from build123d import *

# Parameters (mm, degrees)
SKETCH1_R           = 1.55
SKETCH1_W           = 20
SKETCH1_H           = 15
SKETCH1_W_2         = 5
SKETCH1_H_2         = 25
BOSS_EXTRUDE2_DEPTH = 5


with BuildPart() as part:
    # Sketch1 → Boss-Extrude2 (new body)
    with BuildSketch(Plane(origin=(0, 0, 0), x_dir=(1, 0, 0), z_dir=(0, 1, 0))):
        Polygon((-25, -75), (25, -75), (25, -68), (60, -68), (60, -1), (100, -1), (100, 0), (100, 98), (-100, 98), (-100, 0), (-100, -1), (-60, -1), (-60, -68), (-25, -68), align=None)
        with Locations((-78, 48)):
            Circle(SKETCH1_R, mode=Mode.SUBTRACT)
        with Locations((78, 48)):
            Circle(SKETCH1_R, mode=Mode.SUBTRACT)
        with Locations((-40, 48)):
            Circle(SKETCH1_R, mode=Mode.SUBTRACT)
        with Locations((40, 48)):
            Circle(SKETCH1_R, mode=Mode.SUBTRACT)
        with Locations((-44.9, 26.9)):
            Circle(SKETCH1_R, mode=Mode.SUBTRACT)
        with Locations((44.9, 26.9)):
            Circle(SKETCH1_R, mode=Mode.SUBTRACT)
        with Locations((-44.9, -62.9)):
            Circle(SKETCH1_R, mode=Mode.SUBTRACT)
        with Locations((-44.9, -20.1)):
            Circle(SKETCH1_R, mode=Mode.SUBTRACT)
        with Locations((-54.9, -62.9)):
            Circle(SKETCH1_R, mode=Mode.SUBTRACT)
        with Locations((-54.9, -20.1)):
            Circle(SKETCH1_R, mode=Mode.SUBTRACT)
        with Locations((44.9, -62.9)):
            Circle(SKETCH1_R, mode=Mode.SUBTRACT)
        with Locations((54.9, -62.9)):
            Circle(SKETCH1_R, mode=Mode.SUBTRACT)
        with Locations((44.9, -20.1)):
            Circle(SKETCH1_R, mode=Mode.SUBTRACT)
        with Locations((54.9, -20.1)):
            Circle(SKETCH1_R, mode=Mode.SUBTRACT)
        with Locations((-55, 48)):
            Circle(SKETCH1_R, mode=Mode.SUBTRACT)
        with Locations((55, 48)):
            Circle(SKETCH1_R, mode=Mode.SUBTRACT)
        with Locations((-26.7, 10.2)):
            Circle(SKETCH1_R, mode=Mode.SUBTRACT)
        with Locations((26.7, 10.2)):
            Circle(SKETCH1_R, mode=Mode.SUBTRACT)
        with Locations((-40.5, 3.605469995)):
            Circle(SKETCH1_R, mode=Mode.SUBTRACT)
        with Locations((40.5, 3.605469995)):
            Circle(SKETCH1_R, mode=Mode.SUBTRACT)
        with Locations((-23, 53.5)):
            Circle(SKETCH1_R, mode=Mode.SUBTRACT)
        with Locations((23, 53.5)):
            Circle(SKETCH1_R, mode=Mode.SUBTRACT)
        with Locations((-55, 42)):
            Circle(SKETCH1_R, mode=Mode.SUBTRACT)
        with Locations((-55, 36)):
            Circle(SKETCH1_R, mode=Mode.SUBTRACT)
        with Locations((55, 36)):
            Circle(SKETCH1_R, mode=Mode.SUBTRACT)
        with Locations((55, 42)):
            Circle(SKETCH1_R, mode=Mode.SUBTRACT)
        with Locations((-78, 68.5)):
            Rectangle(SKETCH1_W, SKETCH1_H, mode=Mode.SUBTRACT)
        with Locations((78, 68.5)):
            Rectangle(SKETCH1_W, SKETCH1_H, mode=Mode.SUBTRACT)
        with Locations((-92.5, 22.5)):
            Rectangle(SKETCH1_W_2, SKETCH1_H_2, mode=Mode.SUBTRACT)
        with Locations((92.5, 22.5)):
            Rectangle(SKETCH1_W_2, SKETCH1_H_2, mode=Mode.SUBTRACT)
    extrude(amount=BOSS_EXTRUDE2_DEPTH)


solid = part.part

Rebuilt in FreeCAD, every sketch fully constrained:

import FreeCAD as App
import Part
import Sketcher

V = App.Vector


def add_polygon(sketch, points):
    """Adds a closed chain of lines whose ends are joined by coincident constraints."""
    first, n = sketch.GeometryCount, len(points)
    for a, b in zip(points, points[1:] + points[:1]):
        sketch.addGeometry(Part.LineSegment(App.Vector(*a, 0), App.Vector(*b, 0)), False)
    for i in range(n):
        sketch.addConstraint(Sketcher.Constraint("Coincident", first + i, 2, first + (i + 1) % n, 1))

doc = App.newDocument("Part")
body = doc.addObject("PartDesign::Body", "Body")

sketch1 = doc.addObject("Sketcher::SketchObject", "Sketch")
body.addObject(sketch1)
sketch1.AttachmentSupport = (doc.XZ_Plane, [""])
sketch1.MapMode = "FlatFace"
add_polygon(sketch1, [(-25, 75), (25, 75), (25, 68), (60, 68), (60, 1), (100, 1), (100, -98), (-100, -98), (-100, 1), (-60, 1), (-60, 68), (-25, 68)])
sketch1.addGeometry(Part.Circle(V(-54.9, 62.9, 0), V(0, 0, 1), 1.6), False)
sketch1.addGeometry(Part.Circle(V(-44.9, 62.9, 0), V(0, 0, 1), 1.6), False)
sketch1.addGeometry(Part.Circle(V(-54.9, 20.1, 0), V(0, 0, 1), 1.6), False)
sketch1.addGeometry(Part.Circle(V(-44.9, 20.1, 0), V(0, 0, 1), 1.6), False)
sketch1.addGeometry(Part.Circle(V(-40.5, -3.6, 0), V(0, 0, 1), 1.6), False)
sketch1.addGeometry(Part.Circle(V(44.9, 62.9, 0), V(0, 0, 1), 1.6), False)
sketch1.addGeometry(Part.Circle(V(54.9, 62.9, 0), V(0, 0, 1), 1.6), False)
sketch1.addGeometry(Part.Circle(V(44.9, 20.1, 0), V(0, 0, 1), 1.6), False)
sketch1.addGeometry(Part.Circle(V(40.5, -3.6, 0), V(0, 0, 1), 1.6), False)
sketch1.addGeometry(Part.Circle(V(54.9, 20.1, 0), V(0, 0, 1), 1.6), False)
add_polygon(sketch1, [(-90, -10), (-95, -10), (-95, -35), (-90, -35)])
sketch1.addGeometry(Part.Circle(V(-55, -36, 0), V(0, 0, 1), 1.6), False)
sketch1.addGeometry(Part.Circle(V(-26.7, -10.2, 0), V(0, 0, 1), 1.6), False)
sketch1.addGeometry(Part.Circle(V(-44.9, -26.9, 0), V(0, 0, 1), 1.6), False)
sketch1.addGeometry(Part.Circle(V(-78, -48, 0), V(0, 0, 1), 1.6), False)
sketch1.addGeometry(Part.Circle(V(-55, -42, 0), V(0, 0, 1), 1.6), False)
sketch1.addGeometry(Part.Circle(V(-55, -48, 0), V(0, 0, 1), 1.6), False)
add_polygon(sketch1, [(-68, -61), (-88, -61), (-88, -76), (-68, -76)])
sketch1.addGeometry(Part.Circle(V(-40, -48, 0), V(0, 0, 1), 1.6), False)
sketch1.addGeometry(Part.Circle(V(-23, -53.5, 0), V(0, 0, 1), 1.6), False)
sketch1.addGeometry(Part.Circle(V(26.7, -10.2, 0), V(0, 0, 1), 1.6), False)
sketch1.addGeometry(Part.Circle(V(44.9, -26.9, 0), V(0, 0, 1), 1.6), False)
add_polygon(sketch1, [(95, -10), (90, -10), (90, -35), (95, -35)])
sketch1.addGeometry(Part.Circle(V(55, -36, 0), V(0, 0, 1), 1.6), False)
sketch1.addGeometry(Part.Circle(V(23, -53.5, 0), V(0, 0, 1), 1.6), False)
sketch1.addGeometry(Part.Circle(V(40, -48, 0), V(0, 0, 1), 1.6), False)
sketch1.addGeometry(Part.Circle(V(55, -42, 0), V(0, 0, 1), 1.6), False)
sketch1.addGeometry(Part.Circle(V(55, -48, 0), V(0, 0, 1), 1.6), False)
sketch1.addGeometry(Part.Circle(V(78, -48, 0), V(0, 0, 1), 1.6), False)
add_polygon(sketch1, [(88, -61), (68, -61), (68, -76), (88, -76)])
sketch1.addConstraint(Sketcher.Constraint("Horizontal", 0))
sketch1.addConstraint(Sketcher.Constraint("Vertical", 1))
sketch1.addConstraint(Sketcher.Constraint("Horizontal", 2))
sketch1.addConstraint(Sketcher.Constraint("Vertical", 3))
sketch1.addConstraint(Sketcher.Constraint("Horizontal", 4))
sketch1.addConstraint(Sketcher.Constraint("Vertical", 5))
sketch1.addConstraint(Sketcher.Constraint("Horizontal", 6))
sketch1.addConstraint(Sketcher.Constraint("Vertical", 7))
sketch1.addConstraint(Sketcher.Constraint("Horizontal", 8))
sketch1.addConstraint(Sketcher.Constraint("Vertical", 9))
sketch1.addConstraint(Sketcher.Constraint("Horizontal", 10))
sketch1.addConstraint(Sketcher.Constraint("Vertical", 11))
sketch1.addConstraint(Sketcher.Constraint("Horizontal", 22))
sketch1.addConstraint(Sketcher.Constraint("Vertical", 23))
sketch1.addConstraint(Sketcher.Constraint("Horizontal", 24))
sketch1.addConstraint(Sketcher.Constraint("Vertical", 25))
sketch1.addConstraint(Sketcher.Constraint("Horizontal", 32))
sketch1.addConstraint(Sketcher.Constraint("Vertical", 33))
sketch1.addConstraint(Sketcher.Constraint("Horizontal", 34))
sketch1.addConstraint(Sketcher.Constraint("Vertical", 35))
sketch1.addConstraint(Sketcher.Constraint("Horizontal", 40))
sketch1.addConstraint(Sketcher.Constraint("Vertical", 41))
sketch1.addConstraint(Sketcher.Constraint("Horizontal", 42))
sketch1.addConstraint(Sketcher.Constraint("Vertical", 43))
sketch1.addConstraint(Sketcher.Constraint("Horizontal", 50))
sketch1.addConstraint(Sketcher.Constraint("Vertical", 51))
sketch1.addConstraint(Sketcher.Constraint("Horizontal", 52))
sketch1.addConstraint(Sketcher.Constraint("Vertical", 53))
sketch1.addConstraint(Sketcher.Constraint("Equal", 12, 13))
sketch1.addConstraint(Sketcher.Constraint("Equal", 13, 14))
sketch1.addConstraint(Sketcher.Constraint("Equal", 14, 15))
sketch1.addConstraint(Sketcher.Constraint("Equal", 15, 16))
sketch1.addConstraint(Sketcher.Constraint("Equal", 16, 17))
sketch1.addConstraint(Sketcher.Constraint("Equal", 17, 18))
sketch1.addConstraint(Sketcher.Constraint("Equal", 18, 19))
sketch1.addConstraint(Sketcher.Constraint("Equal", 19, 20))
sketch1.addConstraint(Sketcher.Constraint("Equal", 20, 21))
sketch1.addConstraint(Sketcher.Constraint("Equal", 21, 26))
sketch1.addConstraint(Sketcher.Constraint("Equal", 26, 27))
sketch1.addConstraint(Sketcher.Constraint("Equal", 27, 28))
sketch1.addConstraint(Sketcher.Constraint("Equal", 28, 29))
sketch1.addConstraint(Sketcher.Constraint("Equal", 29, 30))
sketch1.addConstraint(Sketcher.Constraint("Equal", 30, 31))
sketch1.addConstraint(Sketcher.Constraint("Equal", 31, 36))
sketch1.addConstraint(Sketcher.Constraint("Equal", 36, 37))
sketch1.addConstraint(Sketcher.Constraint("Equal", 37, 38))
sketch1.addConstraint(Sketcher.Constraint("Equal", 38, 39))
sketch1.addConstraint(Sketcher.Constraint("Equal", 39, 44))
sketch1.addConstraint(Sketcher.Constraint("Equal", 44, 45))
sketch1.addConstraint(Sketcher.Constraint("Equal", 45, 46))
sketch1.addConstraint(Sketcher.Constraint("Equal", 46, 47))
sketch1.addConstraint(Sketcher.Constraint("Equal", 47, 48))
sketch1.addConstraint(Sketcher.Constraint("Equal", 48, 49))
sketch1.addConstraint(Sketcher.Constraint("Symmetric", 13, 3, 17, 3, -2))
sketch1.addConstraint(Sketcher.Constraint("Symmetric", 12, 3, 18, 3, -2))
sketch1.addConstraint(Sketcher.Constraint("Symmetric", 15, 3, 19, 3, -2))
sketch1.addConstraint(Sketcher.Constraint("Symmetric", 16, 3, 20, 3, -2))
sketch1.addConstraint(Sketcher.Constraint("Symmetric", 14, 3, 21, 3, -2))
sketch1.addConstraint(Sketcher.Constraint("Symmetric", 27, 3, 38, 3, -2))
sketch1.addConstraint(Sketcher.Constraint("Symmetric", 28, 3, 39, 3, -2))
sketch1.addConstraint(Sketcher.Constraint("Symmetric", 26, 3, 44, 3, -2))
sketch1.addConstraint(Sketcher.Constraint("Symmetric", 37, 3, 45, 3, -2))
sketch1.addConstraint(Sketcher.Constraint("Symmetric", 36, 3, 46, 3, -2))
sketch1.addConstraint(Sketcher.Constraint("Symmetric", 30, 3, 47, 3, -2))
sketch1.addConstraint(Sketcher.Constraint("Symmetric", 31, 3, 48, 3, -2))
sketch1.addConstraint(Sketcher.Constraint("Symmetric", 29, 3, 49, 3, -2))
sketch1.addConstraint(Sketcher.Constraint("Symmetric", 4, 2, 7, 2, -2))
sketch1.addConstraint(Sketcher.Constraint("Symmetric", 2, 2, 9, 2, -2))
sketch1.addConstraint(Sketcher.Constraint("Symmetric", 25, 2, 40, 2, -2))
sketch1.addConstraint(Sketcher.Constraint("Symmetric", 23, 2, 42, 2, -2))
sketch1.addConstraint(Sketcher.Constraint("Symmetric", 35, 2, 50, 2, -2))
sketch1.addConstraint(Sketcher.Constraint("Symmetric", 33, 2, 52, 2, -2))
sketch1.addConstraint(Sketcher.Constraint("Horizontal", 12, 3, 13, 3))
sketch1.addConstraint(Sketcher.Constraint("Horizontal", 14, 3, 15, 3))
sketch1.addConstraint(Sketcher.Constraint("Horizontal", 29, 3, 31, 3))
sketch1.addConstraint(Sketcher.Constraint("Horizontal", 31, 3, 36, 3))
sketch1.addConstraint(Sketcher.Constraint("Vertical", 12, 3, 14, 3))
sketch1.addConstraint(Sketcher.Constraint("Vertical", 13, 3, 15, 3))
sketch1.addConstraint(Sketcher.Constraint("Vertical", 15, 3, 28, 3))
sketch1.addConstraint(Sketcher.Constraint("Vertical", 26, 3, 30, 3))
sketch1.addConstraint(Sketcher.Constraint("Vertical", 30, 3, 31, 3))
sketch1.addConstraint(Sketcher.Constraint("Equal", 2, 10))
sketch1.addConstraint(Sketcher.Constraint("Diameter", 12, 3.1))
sketch1.addConstraint(Sketcher.Constraint("DistanceX", 0, 1, 0, 2, 50.0))
sketch1.addConstraint(Sketcher.Constraint("DistanceX", 2, 1, 2, 2, 35.0))
sketch1.addConstraint(Sketcher.Constraint("DistanceX", 4, 1, 4, 2, 40.0))
sketch1.addConstraint(Sketcher.Constraint("DistanceX", 22, 2, 22, 1, 5.0))
sketch1.addConstraint(Sketcher.Constraint("DistanceX", 32, 2, 32, 1, 20.0))
sketch1.addConstraint(Sketcher.Constraint("DistanceY", 1, 2, 1, 1, 7.0))
sketch1.addConstraint(Sketcher.Constraint("DistanceY", 3, 2, 3, 1, 67.0))
sketch1.addConstraint(Sketcher.Constraint("DistanceY", 5, 2, 5, 1, 99.0))
sketch1.addConstraint(Sketcher.Constraint("DistanceY", 23, 2, 23, 1, 25.0))
sketch1.addConstraint(Sketcher.Constraint("DistanceY", 33, 2, 33, 1, 15.0))
sketch1.addConstraint(Sketcher.Constraint("DistanceX", 26, 3, -1, 1, 55.0))
sketch1.addConstraint(Sketcher.Constraint("DistanceY", 26, 3, -1, 1, 36.0))
sketch1.addConstraint(Sketcher.Constraint("DistanceX", 29, 3, -1, 1, 78.0))
sketch1.addConstraint(Sketcher.Constraint("DistanceY", 29, 3, -1, 1, 48.0))
sketch1.addConstraint(Sketcher.Constraint("DistanceY", 30, 3, -1, 1, 42.0))
sketch1.addConstraint(Sketcher.Constraint("DistanceX", 36, 3, -1, 1, 40.0))
sketch1.addConstraint(Sketcher.Constraint("DistanceX", 37, 3, -1, 1, 23.0))
sketch1.addConstraint(Sketcher.Constraint("DistanceY", -1, 1, 0, 2, 75.0))
sketch1.addConstraint(Sketcher.Constraint("DistanceX", 22, 2, -1, 1, 95.0))
sketch1.addConstraint(Sketcher.Constraint("DistanceY", 22, 2, -1, 1, 10.0))
sketch1.addConstraint(Sketcher.Constraint("DistanceX", 32, 2, -1, 1, 88.0))
sketch1.addConstraint(Sketcher.Constraint("DistanceY", 32, 2, -1, 1, 61.0))
sketch1.addConstraint(Sketcher.Constraint("DistanceX", 12, 3, 13, 3, 10.0))
sketch1.addConstraint(Sketcher.Constraint("DistanceX", 16, 3, 20, 3, 81.0))
sketch1.addConstraint(Sketcher.Constraint("DistanceY", 28, 3, 15, 3, 47.0))
sketch1.addConstraint(Sketcher.Constraint("DistanceX", 12, 3, -1, 1, 54.9))
sketch1.addConstraint(Sketcher.Constraint("DistanceY", -1, 1, 12, 3, 62.9))
sketch1.addConstraint(Sketcher.Constraint("DistanceY", -1, 1, 14, 3, 20.1))
sketch1.addConstraint(Sketcher.Constraint("DistanceX", 27, 3, -1, 1, 26.7))
sketch1.addConstraint(Sketcher.Constraint("DistanceY", 27, 3, -1, 1, 10.2))
sketch1.addConstraint(Sketcher.Constraint("DistanceY", 37, 3, -1, 1, 53.5))
sketch1.addConstraint(Sketcher.Constraint("DistanceY", 16, 3, -1, 1, 3.60547))
pad1 = doc.addObject("PartDesign::Pad", "Pad")
body.addObject(pad1)
pad1.Profile = sketch1
pad1.Length = 5
pad1.Reversed = True

doc.recompute()
